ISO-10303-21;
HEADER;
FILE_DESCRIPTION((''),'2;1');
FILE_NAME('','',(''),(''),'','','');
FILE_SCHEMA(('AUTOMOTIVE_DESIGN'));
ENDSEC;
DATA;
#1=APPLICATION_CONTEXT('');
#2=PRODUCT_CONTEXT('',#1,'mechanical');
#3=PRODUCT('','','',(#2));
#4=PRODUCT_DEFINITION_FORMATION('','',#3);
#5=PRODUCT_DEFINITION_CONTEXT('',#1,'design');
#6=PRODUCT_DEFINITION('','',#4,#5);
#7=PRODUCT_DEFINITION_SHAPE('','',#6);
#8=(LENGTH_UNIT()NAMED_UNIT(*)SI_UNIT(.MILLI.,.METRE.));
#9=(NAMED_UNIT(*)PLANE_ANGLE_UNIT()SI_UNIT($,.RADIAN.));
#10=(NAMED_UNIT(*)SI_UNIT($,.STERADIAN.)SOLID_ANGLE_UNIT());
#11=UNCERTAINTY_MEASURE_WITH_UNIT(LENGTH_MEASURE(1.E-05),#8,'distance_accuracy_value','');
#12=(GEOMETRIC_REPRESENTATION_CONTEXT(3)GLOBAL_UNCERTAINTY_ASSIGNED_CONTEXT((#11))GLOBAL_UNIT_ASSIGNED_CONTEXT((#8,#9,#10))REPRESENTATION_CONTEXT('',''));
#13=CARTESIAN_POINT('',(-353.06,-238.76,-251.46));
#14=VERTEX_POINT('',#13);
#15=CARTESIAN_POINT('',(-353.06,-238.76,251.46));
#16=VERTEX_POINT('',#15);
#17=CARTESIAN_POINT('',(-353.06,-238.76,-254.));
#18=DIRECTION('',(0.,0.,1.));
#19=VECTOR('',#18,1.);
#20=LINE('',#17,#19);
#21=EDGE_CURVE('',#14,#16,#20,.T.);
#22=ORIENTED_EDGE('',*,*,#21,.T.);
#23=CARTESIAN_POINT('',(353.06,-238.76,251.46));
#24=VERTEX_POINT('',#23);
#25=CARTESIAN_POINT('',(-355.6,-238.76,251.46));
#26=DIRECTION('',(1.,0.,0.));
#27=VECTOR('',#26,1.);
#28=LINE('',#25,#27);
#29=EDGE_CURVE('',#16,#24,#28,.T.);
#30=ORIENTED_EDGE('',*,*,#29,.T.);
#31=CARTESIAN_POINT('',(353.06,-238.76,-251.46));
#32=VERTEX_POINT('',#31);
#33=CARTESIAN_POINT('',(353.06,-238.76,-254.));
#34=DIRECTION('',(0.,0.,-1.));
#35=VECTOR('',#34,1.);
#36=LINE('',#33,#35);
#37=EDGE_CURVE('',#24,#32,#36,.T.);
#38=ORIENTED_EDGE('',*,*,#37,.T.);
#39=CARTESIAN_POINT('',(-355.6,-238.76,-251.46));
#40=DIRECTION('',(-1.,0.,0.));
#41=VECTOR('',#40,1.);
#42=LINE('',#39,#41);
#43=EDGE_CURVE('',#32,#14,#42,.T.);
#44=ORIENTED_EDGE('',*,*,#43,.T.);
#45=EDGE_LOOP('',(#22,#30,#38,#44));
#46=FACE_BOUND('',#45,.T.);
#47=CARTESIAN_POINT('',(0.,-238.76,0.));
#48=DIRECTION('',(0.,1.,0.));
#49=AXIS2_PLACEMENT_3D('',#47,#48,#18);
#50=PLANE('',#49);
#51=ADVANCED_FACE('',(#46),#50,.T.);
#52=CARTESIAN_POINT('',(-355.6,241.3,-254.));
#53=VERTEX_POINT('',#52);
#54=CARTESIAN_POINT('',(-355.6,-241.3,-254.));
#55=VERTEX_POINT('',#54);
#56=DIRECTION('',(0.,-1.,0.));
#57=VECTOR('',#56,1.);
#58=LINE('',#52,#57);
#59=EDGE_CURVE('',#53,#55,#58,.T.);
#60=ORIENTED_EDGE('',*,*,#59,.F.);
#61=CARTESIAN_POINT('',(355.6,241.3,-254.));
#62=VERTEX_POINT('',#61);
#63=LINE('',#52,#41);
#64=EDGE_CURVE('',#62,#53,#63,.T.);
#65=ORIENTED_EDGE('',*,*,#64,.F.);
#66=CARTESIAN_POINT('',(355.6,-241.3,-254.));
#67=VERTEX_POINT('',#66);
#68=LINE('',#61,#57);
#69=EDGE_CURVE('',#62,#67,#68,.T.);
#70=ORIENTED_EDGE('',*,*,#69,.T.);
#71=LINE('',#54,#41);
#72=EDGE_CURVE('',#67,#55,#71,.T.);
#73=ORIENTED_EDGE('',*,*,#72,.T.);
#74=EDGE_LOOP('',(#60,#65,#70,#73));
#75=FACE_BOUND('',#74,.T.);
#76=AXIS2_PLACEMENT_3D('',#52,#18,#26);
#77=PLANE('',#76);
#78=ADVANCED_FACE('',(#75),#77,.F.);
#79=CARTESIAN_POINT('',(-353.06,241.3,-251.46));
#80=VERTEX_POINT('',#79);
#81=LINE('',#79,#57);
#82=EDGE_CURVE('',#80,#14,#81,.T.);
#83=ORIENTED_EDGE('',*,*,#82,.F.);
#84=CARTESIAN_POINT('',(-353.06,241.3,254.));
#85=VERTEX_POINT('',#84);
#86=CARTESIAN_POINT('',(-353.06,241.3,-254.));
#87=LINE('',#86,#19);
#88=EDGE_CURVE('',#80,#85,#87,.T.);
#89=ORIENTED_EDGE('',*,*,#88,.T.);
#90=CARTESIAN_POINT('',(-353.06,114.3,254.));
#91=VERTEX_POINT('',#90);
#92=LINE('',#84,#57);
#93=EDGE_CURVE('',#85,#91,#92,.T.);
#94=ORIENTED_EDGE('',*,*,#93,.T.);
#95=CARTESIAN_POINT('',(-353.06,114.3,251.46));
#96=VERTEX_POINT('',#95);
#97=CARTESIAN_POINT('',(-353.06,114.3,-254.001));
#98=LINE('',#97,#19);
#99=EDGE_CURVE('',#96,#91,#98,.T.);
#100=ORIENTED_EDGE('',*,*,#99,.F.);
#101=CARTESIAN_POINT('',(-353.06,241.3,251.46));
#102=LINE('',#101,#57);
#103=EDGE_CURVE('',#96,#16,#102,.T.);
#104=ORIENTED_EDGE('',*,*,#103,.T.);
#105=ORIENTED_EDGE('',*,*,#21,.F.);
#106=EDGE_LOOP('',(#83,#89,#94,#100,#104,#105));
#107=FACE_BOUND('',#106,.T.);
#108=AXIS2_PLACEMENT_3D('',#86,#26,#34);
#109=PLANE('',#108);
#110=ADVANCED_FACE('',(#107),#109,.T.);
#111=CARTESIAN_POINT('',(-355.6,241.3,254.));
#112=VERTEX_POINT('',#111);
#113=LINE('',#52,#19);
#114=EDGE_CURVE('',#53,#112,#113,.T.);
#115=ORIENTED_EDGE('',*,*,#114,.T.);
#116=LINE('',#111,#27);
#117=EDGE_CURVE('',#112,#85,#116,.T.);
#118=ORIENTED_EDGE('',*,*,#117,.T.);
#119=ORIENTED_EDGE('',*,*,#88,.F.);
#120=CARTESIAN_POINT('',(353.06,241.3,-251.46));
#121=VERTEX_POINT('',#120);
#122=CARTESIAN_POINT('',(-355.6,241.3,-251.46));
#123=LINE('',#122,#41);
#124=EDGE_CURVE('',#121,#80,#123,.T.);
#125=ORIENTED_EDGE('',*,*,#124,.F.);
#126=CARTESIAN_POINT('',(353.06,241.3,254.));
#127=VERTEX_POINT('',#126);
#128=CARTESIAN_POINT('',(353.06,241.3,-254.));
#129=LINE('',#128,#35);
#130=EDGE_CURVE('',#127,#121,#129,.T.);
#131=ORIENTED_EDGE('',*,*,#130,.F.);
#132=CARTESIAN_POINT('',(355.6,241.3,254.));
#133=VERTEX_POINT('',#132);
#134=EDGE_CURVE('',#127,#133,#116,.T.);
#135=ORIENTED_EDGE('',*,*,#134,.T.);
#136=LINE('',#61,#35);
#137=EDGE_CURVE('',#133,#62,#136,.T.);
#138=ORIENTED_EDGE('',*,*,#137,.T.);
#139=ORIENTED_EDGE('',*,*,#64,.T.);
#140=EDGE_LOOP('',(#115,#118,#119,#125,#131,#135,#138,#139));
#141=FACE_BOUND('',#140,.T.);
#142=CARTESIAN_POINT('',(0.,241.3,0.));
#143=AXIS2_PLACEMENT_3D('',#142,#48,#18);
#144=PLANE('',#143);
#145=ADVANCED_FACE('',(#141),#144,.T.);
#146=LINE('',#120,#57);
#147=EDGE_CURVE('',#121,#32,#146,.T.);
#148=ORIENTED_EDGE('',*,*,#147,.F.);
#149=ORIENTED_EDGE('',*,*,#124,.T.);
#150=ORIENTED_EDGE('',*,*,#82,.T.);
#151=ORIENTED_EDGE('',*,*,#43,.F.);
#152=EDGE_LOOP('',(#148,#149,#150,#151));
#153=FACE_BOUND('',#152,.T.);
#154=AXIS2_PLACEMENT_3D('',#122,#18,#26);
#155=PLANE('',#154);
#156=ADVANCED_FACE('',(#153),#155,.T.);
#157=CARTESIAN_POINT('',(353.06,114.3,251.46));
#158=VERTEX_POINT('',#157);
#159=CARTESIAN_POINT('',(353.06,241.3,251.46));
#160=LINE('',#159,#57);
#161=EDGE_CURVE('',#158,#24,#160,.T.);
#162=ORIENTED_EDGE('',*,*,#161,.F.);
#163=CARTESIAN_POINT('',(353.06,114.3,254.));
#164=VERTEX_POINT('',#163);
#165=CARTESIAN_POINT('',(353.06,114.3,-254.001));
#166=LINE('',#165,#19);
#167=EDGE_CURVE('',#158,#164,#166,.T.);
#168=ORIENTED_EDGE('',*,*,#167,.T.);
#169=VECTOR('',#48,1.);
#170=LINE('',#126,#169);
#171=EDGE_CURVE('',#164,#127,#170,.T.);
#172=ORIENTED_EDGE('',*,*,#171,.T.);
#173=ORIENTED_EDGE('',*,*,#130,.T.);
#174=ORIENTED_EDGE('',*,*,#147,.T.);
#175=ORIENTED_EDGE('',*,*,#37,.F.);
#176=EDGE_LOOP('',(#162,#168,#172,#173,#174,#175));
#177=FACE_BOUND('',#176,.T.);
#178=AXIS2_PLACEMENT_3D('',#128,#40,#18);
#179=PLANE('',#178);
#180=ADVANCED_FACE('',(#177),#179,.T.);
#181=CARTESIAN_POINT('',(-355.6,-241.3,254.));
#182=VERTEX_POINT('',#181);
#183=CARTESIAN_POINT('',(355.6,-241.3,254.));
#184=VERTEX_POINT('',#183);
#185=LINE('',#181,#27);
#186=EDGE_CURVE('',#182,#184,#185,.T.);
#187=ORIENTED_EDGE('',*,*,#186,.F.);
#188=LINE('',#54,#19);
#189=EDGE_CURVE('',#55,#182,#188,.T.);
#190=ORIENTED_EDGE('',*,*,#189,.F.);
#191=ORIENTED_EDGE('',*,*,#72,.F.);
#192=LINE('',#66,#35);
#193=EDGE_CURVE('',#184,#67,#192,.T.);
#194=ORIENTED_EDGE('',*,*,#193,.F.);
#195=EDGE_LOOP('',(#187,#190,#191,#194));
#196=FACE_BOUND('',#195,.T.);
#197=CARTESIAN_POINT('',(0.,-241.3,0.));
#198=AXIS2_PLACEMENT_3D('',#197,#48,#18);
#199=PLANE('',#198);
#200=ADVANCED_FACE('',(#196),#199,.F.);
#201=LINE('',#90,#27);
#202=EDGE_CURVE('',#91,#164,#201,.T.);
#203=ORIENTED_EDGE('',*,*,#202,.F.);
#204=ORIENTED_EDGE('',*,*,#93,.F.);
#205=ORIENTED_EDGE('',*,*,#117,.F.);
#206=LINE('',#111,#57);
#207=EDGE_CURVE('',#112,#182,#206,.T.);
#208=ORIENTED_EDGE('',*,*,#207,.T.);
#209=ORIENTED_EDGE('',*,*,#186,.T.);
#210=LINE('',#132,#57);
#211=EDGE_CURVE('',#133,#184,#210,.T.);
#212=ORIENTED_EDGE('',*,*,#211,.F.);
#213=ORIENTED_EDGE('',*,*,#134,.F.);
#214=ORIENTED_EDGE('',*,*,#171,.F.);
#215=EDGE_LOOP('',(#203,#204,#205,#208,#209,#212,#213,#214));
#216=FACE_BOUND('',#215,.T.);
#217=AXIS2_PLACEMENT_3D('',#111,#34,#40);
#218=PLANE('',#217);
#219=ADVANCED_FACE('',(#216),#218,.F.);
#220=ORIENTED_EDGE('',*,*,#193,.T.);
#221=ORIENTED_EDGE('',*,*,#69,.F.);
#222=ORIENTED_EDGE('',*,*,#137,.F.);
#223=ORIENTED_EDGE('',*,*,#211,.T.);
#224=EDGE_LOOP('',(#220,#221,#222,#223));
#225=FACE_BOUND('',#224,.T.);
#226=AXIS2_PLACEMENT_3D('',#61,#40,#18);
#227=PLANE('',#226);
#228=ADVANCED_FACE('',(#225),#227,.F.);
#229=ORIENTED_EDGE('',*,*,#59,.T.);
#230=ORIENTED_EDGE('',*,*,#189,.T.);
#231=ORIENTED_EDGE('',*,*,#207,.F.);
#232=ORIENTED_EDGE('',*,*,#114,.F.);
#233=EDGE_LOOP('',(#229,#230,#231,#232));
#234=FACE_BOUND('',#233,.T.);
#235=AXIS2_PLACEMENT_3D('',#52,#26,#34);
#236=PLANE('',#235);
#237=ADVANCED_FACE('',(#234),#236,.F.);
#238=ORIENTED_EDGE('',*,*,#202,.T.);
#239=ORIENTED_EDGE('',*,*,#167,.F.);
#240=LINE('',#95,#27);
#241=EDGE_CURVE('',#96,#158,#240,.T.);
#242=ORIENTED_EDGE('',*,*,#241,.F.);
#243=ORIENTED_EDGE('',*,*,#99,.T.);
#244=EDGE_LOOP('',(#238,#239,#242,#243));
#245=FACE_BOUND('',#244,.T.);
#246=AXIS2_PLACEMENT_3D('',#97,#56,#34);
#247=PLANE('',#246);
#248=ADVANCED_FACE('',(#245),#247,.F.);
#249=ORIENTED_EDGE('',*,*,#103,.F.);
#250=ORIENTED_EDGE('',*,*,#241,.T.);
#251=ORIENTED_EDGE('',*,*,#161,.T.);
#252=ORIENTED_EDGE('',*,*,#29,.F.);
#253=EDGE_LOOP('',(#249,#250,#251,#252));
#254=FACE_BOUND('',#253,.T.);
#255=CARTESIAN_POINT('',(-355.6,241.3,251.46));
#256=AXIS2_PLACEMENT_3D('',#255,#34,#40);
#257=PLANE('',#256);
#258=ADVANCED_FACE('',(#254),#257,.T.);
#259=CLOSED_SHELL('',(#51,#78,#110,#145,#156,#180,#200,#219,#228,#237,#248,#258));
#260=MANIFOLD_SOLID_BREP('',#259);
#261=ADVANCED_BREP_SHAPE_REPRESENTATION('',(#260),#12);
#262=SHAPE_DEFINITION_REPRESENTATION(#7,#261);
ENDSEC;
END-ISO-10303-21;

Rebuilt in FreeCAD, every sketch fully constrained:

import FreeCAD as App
import Part
import Sketcher

V = App.Vector
Q = App.Units.Quantity


def faces_at(feature, points):
    """Names of the faces that lie closest to the given points."""
    faces = feature.Shape.Faces
    near = lambda p: min(range(len(faces)), key=lambda i: faces[i].distToShape(Part.Vertex(*p))[0])
    return sorted({f"Face{near(p) + 1}" for p in points})

doc = App.newDocument("Part")
body = doc.addObject("PartDesign::Body", "Body")

# Sketch on XZ plane
sketch1 = body.newObject("Sketcher::SketchObject", "Sketch")
sketch1.AttachmentSupport = (doc.getObject("XZ_Plane"), [""])
sketch1.MapMode = "FlatFace"
sketch1.addGeometry(Part.LineSegment(V(-356, -254, 0), V(-356, 254, 0)), False)
sketch1.addGeometry(Part.LineSegment(V(-356, 254, 0), V(356, 254, 0)), False)
sketch1.addGeometry(Part.LineSegment(V(356, 254, 0), V(356, -254, 0)), False)
sketch1.addGeometry(Part.LineSegment(V(356, -254, 0), V(-356, -254, 0)), False)
sketch1.addConstraint(Sketcher.Constraint("Coincident", 0, 2, 1, 1))
sketch1.addConstraint(Sketcher.Constraint("Coincident", 1, 2, 2, 1))
sketch1.addConstraint(Sketcher.Constraint("Coincident", 2, 2, 3, 1))
sketch1.addConstraint(Sketcher.Constraint("Coincident", 3, 2, 0, 1))
sketch1.addConstraint(Sketcher.Constraint("Vertical", 0))
sketch1.addConstraint(Sketcher.Constraint("Horizontal", 1))
sketch1.addConstraint(Sketcher.Constraint("Vertical", 2))
sketch1.addConstraint(Sketcher.Constraint("Horizontal", 3))
sketch1.addConstraint(Sketcher.Constraint("Symmetric", 0, 2, 2, 2, -1, 1))
sketch1.addConstraint(Sketcher.Constraint("DistanceX", 1, 1, 1, 2, Q("28 in")))
sketch1.addConstraint(Sketcher.Constraint("DistanceY", 0, 1, 0, 2, Q("20 in")))
pad1 = body.newObject("PartDesign::Pad", "Pad")
pad1.Profile = sketch1
pad1.Length = Q("19 in")
pad1.Midplane = True
doc.recompute()

thickness = body.newObject("PartDesign::Thickness", "Thickness")
thickness.Base = (pad1, faces_at(pad1, [(0, 241.3, 0)]))
thickness.Value = Q("0.1 in")
thickness.Reversed = True
thickness.Join = "Intersection"

# Sketch on XY plane
sketch2 = body.newObject("Sketcher::SketchObject", "Sketch001")
sketch2.AttachmentSupport = (doc.getObject("XY_Plane"), [""])
sketch2.MapMode = "FlatFace"
sketch2.AttachmentOffset = App.Placement(V(0, 0, 10 * 25.4), App.Rotation())
sketch2.addGeometry(Part.LineSegment(V(-353, 241, 0), V(-353, 114, 0)), False)
sketch2.addGeometry(Part.LineSegment(V(-353, 114, 0), V(353, 114, 0)), False)
sketch2.addGeometry(Part.LineSegment(V(353, 114, 0), V(353, 241, 0)), False)
sketch2.addGeometry(Part.LineSegment(V(353, 241, 0), V(-353, 241, 0)), False)
sketch2.addConstraint(Sketcher.Constraint("Coincident", 0, 2, 1, 1))
sketch2.addConstraint(Sketcher.Constraint("Coincident", 1, 2, 2, 1))
sketch2.addConstraint(Sketcher.Constraint("Coincident", 2, 2, 3, 1))
sketch2.addConstraint(Sketcher.Constraint("Coincident", 3, 2, 0, 1))
sketch2.addConstraint(Sketcher.Constraint("Vertical", 0))
sketch2.addConstraint(Sketcher.Constraint("Horizontal", 1))
sketch2.addConstraint(Sketcher.Constraint("Vertical", 2))
sketch2.addConstraint(Sketcher.Constraint("Horizontal", 3))
sketch2.addConstraint(Sketcher.Constraint("DistanceY", 0, 2, 0, 1, Q("5 in")))
sketch2.addConstraint(Sketcher.Constraint("DistanceX", 1, 1, 1, 2, Q("27.8 in")))
sketch2.addConstraint(Sketcher.Constraint("DistanceX", 0, 2, -1, 1, Q("13.9 in")))
sketch2.addConstraint(Sketcher.Constraint("DistanceY", -1, 1, 0, 2, Q("4.5 in")))
pocket1 = body.newObject("PartDesign::Pocket", "Pocket")
pocket1.Profile = sketch2
pocket1.Type = "UpToFirst"

doc.recompute()
